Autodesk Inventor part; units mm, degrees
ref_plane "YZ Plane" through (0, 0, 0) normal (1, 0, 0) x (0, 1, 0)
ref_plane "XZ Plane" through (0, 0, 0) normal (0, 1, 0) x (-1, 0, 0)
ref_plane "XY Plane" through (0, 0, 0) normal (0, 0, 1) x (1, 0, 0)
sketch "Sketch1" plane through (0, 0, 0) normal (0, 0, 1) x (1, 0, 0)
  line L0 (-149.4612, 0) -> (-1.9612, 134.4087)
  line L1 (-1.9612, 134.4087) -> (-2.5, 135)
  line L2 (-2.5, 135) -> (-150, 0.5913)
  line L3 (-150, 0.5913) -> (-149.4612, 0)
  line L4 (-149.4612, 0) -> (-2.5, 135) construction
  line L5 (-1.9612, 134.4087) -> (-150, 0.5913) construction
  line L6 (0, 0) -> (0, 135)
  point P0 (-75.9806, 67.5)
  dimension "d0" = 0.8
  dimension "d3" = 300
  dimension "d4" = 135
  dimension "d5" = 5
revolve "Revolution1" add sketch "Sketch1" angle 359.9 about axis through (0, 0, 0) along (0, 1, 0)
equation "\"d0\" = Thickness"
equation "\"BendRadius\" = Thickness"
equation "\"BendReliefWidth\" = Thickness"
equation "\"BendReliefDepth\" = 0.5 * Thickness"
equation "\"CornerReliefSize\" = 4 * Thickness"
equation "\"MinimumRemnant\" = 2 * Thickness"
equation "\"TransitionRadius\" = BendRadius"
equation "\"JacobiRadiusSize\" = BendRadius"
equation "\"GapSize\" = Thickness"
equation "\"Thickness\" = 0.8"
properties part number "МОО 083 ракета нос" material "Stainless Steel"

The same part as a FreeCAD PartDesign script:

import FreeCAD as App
import Part
import Sketcher
Q = App.Units.Quantity

doc = App.newDocument("Part")
body = doc.addObject("PartDesign::Body", "Body")

# Sketch on XY plane
sketch1 = body.newObject("Sketcher::SketchObject", "Sketch")
sketch1.AttachmentSupport = (doc.getObject("XY_Plane"), [""])
sketch1.MapMode = "FlatFace"
sketch1.addGeometry([
    Part.LineSegment(App.Vector(-150, 0.5913, 0), App.Vector(-149.4612, 0, 0)),
    Part.LineSegment(App.Vector(-149.4612, 0, 0), App.Vector(-1.9612, 134.4087, 0)),
    Part.LineSegment(App.Vector(-1.9612, 134.4087, 0), App.Vector(-2.5, 135, 0)),
    Part.LineSegment(App.Vector(-2.5, 135, 0), App.Vector(-150, 0.5913, 0)),
], False)
sketch1.addConstraint([
    Sketcher.Constraint("Coincident", 0, 2, 1, 1),
    Sketcher.Constraint("Coincident", 1, 2, 2, 1),
    Sketcher.Constraint("Coincident", 2, 2, 3, 1),
    Sketcher.Constraint("Coincident", 3, 2, 0, 1),
    Sketcher.Constraint("PointOnObject", 0, 2, -1),
    Sketcher.Constraint("Perpendicular", 0, 1),
    Sketcher.Constraint("Perpendicular", 1, 2),
    Sketcher.Constraint("Perpendicular", 2, 3),
    Sketcher.Constraint("DistanceY", -1, 1, 2, 2, Q("135 mm")),
    Sketcher.Constraint("Distance", 0, Q("0.8 mm")),
    Sketcher.Constraint("DistanceX", 3, 2, -1, 1, Q("150 mm")),
    Sketcher.Constraint("DistanceX", 2, 2, -1, 1, Q("2.5 mm")),
])
revolution = body.newObject("PartDesign::Revolution", "Revolution")
revolution.Profile = sketch1
revolution.ReferenceAxis = (sketch1, ["V_Axis"])
revolution.Angle = 359.9

doc.recompute()
